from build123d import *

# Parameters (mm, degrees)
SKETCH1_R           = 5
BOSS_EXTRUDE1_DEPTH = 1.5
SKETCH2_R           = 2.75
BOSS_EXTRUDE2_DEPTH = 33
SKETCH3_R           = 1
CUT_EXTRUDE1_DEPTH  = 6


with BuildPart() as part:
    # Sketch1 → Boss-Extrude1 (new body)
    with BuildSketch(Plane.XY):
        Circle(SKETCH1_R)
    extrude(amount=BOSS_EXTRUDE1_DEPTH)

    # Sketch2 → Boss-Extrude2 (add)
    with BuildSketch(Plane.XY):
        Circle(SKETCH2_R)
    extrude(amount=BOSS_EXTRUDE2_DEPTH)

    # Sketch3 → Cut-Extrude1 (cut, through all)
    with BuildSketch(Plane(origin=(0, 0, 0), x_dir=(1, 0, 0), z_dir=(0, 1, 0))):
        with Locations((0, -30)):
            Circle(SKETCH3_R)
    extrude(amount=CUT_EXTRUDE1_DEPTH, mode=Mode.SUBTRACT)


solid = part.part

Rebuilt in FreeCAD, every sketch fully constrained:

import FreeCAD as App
import Part
import Sketcher
from FreeCAD import Vector
Q = App.Units.Quantity

doc = App.newDocument("Part")
body = doc.addObject("PartDesign::Body", "Body")

sketch1 = doc.addObject("Sketcher::SketchObject", "Sketch")
body.addObject(sketch1)
sketch1.AttachmentSupport = (doc.XY_Plane, [""])
sketch1.MapMode = "FlatFace"
sketch1.addGeometry(Part.Circle(Vector(0, 0, 0), Vector(0, 0, 1), 5), False)
sketch1.addConstraint([
    Sketcher.Constraint("Coincident", 0, 3, -1, 1),
    Sketcher.Constraint("Diameter", 0, Q("10 mm")),
])
pad1 = doc.addObject("PartDesign::Pad", "Pad")
body.addObject(pad1)
pad1.Profile = sketch1
pad1.Length = 1.5

sketch2 = doc.addObject("Sketcher::SketchObject", "Sketch001")
body.addObject(sketch2)
sketch2.AttachmentSupport = (doc.XY_Plane, [""])
sketch2.MapMode = "FlatFace"
sketch2.addGeometry(Part.Circle(Vector(0, 0, 0), Vector(0, 0, 1), 2.8), False)
sketch2.addConstraint([
    Sketcher.Constraint("Coincident", 0, 3, -1, 1),
    Sketcher.Constraint("Diameter", 0, Q("5.5 mm")),
])
pad2 = doc.addObject("PartDesign::Pad", "Pad001")
body.addObject(pad2)
pad2.Profile = sketch2
pad2.Length = 33

sketch3 = doc.addObject("Sketcher::SketchObject", "Sketch002")
body.addObject(sketch3)
sketch3.AttachmentSupport = (doc.XZ_Plane, [""])
sketch3.MapMode = "FlatFace"
sketch3.addGeometry(Part.Circle(Vector(0, 30, 0), Vector(0, 0, 1), 1), False)
sketch3.addConstraint([
    Sketcher.Constraint("PointOnObject", 0, 3, -2),
    Sketcher.Constraint("Diameter", 0, Q("2 mm")),
    Sketcher.Constraint("DistanceY", -1, 1, 0, 3, Q("30 mm")),
])
pocket1 = doc.addObject("PartDesign::Pocket", "Pocket")
body.addObject(pocket1)
pocket1.Profile = sketch3
pocket1.Type = "ThroughAll"

doc.recompute()
